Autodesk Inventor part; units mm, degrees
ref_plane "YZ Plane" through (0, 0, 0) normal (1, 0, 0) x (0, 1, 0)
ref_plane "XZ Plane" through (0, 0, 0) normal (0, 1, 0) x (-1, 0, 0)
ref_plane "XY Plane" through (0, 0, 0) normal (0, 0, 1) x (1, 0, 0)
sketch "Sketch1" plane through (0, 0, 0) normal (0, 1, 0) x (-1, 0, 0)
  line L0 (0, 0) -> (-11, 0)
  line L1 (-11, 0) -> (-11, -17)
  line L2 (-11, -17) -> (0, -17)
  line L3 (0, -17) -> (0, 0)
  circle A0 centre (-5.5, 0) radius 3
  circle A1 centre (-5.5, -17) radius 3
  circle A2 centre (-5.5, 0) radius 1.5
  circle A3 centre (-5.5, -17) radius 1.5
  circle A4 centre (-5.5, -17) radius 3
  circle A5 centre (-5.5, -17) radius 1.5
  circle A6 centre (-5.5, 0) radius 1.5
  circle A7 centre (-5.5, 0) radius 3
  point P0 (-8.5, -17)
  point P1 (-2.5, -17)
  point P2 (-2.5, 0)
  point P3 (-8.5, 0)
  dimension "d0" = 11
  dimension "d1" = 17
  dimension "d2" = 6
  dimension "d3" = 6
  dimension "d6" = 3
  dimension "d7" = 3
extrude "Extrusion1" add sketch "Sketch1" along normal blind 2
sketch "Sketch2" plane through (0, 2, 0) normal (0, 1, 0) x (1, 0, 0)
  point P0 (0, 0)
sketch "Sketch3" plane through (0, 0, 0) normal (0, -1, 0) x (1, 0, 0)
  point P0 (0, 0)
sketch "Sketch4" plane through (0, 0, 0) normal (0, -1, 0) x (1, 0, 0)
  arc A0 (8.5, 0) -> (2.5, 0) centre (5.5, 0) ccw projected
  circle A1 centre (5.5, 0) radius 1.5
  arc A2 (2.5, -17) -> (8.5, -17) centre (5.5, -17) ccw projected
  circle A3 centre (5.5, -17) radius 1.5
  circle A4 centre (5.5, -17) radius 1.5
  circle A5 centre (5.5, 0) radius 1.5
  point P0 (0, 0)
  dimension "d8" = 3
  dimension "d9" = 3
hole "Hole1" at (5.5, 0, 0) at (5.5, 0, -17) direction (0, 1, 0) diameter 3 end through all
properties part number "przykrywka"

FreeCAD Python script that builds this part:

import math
import FreeCAD as App
import Part
import Sketcher
Q = App.Units.Quantity

doc = App.newDocument("Part")
params = doc.addObject("Spreadsheet::Sheet", "Params")
for row, (alias, value) in enumerate([
    ("sketch1_radius", "3 mm"),
    ("sketch1_height", "17 mm"),
    ("pad1_length", "2 mm"),
    ("sketch2_diameter", "3 mm"),
    ("hole_diameter", "3 mm"),
], start=1):
    params.set(f"A{row}", alias)
    params.set(f"B{row}", "=" + value)
    params.setAlias(f"B{row}", alias)

body = doc.addObject("PartDesign::Body", "Body")

# Sketch on XZ plane
sketch1 = doc.addObject("Sketcher::SketchObject", "Sketch")
body.addObject(sketch1)
sketch1.AttachmentSupport = (doc.XZ_Plane, [""])
sketch1.MapMode = "FlatFace"
sketch1.addGeometry([
    Part.LineSegment(App.Vector(0, -17, 0), App.Vector(0, 0, 0)),  # 0
    Part.LineSegment(App.Vector(0, 0, 0), App.Vector(2.5, 0, 0)),  # 1
    Part.ArcOfCircle(Part.Circle(App.Vector(5.5, 0, 0), App.Vector(0, 0, 1), 3), math.radians(0), math.radians(180)),  # 2
    Part.LineSegment(App.Vector(8.5, 0, 0), App.Vector(11, 0, 0)),  # 3
    Part.LineSegment(App.Vector(11, 0, 0), App.Vector(11, -17, 0)),  # 4
    Part.LineSegment(App.Vector(11, -17, 0), App.Vector(8.5, -17, 0)),  # 5
    Part.ArcOfCircle(Part.Circle(App.Vector(5.5, -17, 0), App.Vector(0, 0, 1), 3), math.radians(180), math.radians(360)),  # 6
    Part.LineSegment(App.Vector(2.5, -17, 0), App.Vector(0, -17, 0)),  # 7
], False)
sketch1.addConstraint([
    Sketcher.Constraint("Coincident", 0, 2, 1, 1),
    Sketcher.Constraint("Coincident", 1, 2, 2, 2),
    Sketcher.Constraint("Coincident", 2, 1, 3, 1),
    Sketcher.Constraint("Coincident", 3, 2, 4, 1),
    Sketcher.Constraint("Coincident", 4, 2, 5, 1),
    Sketcher.Constraint("Coincident", 5, 2, 6, 2),
    Sketcher.Constraint("Coincident", 6, 1, 7, 1),
    Sketcher.Constraint("Coincident", 7, 2, 0, 1),
    Sketcher.Constraint("Vertical", 0),
    Sketcher.Constraint("Horizontal", 1),
    Sketcher.Constraint("Horizontal", 3),
    Sketcher.Constraint("Vertical", 4),
    Sketcher.Constraint("Horizontal", 5),
    Sketcher.Constraint("Horizontal", 7),
    Sketcher.Constraint("Coincident", 0, 2, -1, 1),
    Sketcher.Constraint("Equal", 2, 6),
    Sketcher.Constraint("PointOnObject", 2, 3, -1),
    Sketcher.Constraint("PointOnObject", 2, 1, -1),
    Sketcher.Constraint("Horizontal", 6, 3, 4, 2),
    Sketcher.Constraint("Horizontal", 5, 2, 6, 1),
    Sketcher.Constraint("Vertical", 2, 3, 6, 3),
    Sketcher.Constraint("Equal", 1, 3),
    Sketcher.Constraint("Radius", 2, Q("3 mm")),
    Sketcher.Constraint("DistanceY", 0, 1, 0, 2, Q("17 mm")),
    Sketcher.Constraint("DistanceX", -1, 1, 3, 2, Q("11 mm")),
])
sketch1.setExpression("Constraints[22]", "Params.sketch1_radius")
sketch1.setExpression("Constraints[23]", "Params.sketch1_height")
pad1 = doc.addObject("PartDesign::Pad", "Pad")
body.addObject(pad1)
pad1.Profile = sketch1
pad1.setExpression("Length", "Params.pad1_length")
pad1.Reversed = True

# Sketch on XZ plane
sketch2 = doc.addObject("Sketcher::SketchObject", "Sketch001")
body.addObject(sketch2)
sketch2.AttachmentSupport = (doc.XZ_Plane, [""])
sketch2.MapMode = "FlatFace"
sketch2.addGeometry([
    Part.Circle(App.Vector(5.5, 0, 0), App.Vector(0, 0, 1), 1.5),
    Part.Circle(App.Vector(5.5, -17, 0), App.Vector(0, 0, 1), 1.5),
], False)
sketch2.addConstraint([
    Sketcher.Constraint("Equal", 0, 1),
    Sketcher.Constraint("PointOnObject", 0, 3, -1),
    Sketcher.Constraint("Vertical", 0, 3, 1, 3),
    Sketcher.Constraint("Diameter", 0, Q("3 mm")),
    Sketcher.Constraint("DistanceY", 1, 3, -1, 1, Q("17 mm")),
    Sketcher.Constraint("DistanceX", -1, 1, 0, 3, Q("5.5 mm")),
])
sketch2.setExpression("Constraints[3]", "Params.sketch2_diameter")
doc.recompute()
hole = doc.addObject("PartDesign::Hole", "Hole")
body.addObject(hole)
hole.Profile = sketch2
hole.ThreadType = "None"
hole.setExpression("Diameter", "Params.hole_diameter")
hole.DepthType = "ThroughAll"

doc.recompute()
